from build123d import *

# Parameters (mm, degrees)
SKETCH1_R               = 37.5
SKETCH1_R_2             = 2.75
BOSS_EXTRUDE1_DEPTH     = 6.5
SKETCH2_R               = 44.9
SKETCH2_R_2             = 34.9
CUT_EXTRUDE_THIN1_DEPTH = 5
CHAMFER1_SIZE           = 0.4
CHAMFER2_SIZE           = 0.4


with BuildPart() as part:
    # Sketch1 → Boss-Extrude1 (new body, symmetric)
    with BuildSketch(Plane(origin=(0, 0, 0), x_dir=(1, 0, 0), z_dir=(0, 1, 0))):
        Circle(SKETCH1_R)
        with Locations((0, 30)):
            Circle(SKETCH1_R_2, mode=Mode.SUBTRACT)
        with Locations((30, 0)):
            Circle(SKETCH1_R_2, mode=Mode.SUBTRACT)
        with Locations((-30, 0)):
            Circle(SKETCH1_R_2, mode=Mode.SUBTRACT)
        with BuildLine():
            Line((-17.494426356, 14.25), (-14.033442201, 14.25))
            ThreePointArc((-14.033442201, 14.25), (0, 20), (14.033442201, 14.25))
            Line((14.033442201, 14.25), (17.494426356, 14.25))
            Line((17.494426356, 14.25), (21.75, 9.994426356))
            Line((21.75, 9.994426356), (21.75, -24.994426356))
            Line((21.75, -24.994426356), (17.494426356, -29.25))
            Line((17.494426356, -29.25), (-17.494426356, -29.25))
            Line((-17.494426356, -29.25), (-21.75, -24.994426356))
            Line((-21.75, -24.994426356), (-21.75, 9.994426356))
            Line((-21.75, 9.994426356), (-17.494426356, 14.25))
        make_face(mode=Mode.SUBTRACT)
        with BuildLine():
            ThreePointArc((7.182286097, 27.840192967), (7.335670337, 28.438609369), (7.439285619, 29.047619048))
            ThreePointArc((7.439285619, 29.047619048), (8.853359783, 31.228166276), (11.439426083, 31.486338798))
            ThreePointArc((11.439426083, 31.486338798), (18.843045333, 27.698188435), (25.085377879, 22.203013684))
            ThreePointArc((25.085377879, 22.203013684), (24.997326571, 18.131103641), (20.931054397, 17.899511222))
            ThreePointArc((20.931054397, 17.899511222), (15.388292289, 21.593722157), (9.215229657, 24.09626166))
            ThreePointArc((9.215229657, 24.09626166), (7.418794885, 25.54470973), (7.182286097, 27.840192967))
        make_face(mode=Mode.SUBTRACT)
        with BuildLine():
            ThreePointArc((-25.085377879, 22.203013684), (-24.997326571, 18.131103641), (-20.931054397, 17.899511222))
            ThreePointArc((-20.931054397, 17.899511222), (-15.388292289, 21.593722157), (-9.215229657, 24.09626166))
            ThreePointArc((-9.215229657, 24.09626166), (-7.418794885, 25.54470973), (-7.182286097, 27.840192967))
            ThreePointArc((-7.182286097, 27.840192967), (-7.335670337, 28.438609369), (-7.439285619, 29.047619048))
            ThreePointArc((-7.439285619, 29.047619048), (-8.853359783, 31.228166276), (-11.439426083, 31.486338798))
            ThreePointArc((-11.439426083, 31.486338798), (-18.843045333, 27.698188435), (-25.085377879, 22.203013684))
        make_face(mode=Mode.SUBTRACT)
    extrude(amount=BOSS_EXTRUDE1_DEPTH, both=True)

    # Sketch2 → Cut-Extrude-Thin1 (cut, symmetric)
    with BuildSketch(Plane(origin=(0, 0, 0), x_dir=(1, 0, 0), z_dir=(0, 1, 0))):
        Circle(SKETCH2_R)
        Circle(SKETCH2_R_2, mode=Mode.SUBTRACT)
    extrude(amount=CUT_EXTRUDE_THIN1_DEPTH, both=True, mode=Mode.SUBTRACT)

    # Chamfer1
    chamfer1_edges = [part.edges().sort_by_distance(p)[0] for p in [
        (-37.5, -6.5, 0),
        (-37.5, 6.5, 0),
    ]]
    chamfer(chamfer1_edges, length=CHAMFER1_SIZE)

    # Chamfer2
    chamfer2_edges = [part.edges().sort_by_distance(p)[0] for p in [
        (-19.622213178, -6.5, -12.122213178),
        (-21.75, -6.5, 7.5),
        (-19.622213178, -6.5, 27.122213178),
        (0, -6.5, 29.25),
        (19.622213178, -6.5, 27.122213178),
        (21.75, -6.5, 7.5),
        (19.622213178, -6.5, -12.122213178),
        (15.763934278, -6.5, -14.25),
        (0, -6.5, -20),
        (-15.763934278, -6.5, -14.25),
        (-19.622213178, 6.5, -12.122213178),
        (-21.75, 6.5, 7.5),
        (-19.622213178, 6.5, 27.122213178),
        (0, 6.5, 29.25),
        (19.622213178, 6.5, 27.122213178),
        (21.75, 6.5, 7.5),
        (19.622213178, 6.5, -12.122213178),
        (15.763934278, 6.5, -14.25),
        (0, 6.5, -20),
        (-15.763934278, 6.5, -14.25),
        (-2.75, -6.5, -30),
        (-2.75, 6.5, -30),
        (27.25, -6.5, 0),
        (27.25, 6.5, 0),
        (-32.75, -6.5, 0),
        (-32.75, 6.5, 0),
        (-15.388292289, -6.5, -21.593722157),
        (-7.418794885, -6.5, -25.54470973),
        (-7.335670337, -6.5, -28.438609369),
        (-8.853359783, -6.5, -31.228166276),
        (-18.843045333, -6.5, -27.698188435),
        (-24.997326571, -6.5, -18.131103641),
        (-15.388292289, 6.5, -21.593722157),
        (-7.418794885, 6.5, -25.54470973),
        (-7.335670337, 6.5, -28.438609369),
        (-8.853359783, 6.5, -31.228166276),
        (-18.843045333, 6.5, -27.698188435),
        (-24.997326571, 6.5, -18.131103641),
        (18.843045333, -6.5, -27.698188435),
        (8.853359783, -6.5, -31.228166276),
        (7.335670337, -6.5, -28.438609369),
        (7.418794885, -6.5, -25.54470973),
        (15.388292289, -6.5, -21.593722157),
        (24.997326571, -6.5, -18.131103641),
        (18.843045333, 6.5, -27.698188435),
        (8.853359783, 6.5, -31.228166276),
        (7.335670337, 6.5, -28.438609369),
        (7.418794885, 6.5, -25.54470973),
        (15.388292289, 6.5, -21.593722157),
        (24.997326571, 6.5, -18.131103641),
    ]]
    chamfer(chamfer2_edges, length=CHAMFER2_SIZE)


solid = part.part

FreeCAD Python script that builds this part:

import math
import FreeCAD as App
import Part
import Sketcher


def edges_at(feature, points):
    """Names of the edges that pass closest to the given points."""
    edges = feature.Shape.Edges
    near = lambda p: min(range(len(edges)), key=lambda i: edges[i].distToShape(Part.Vertex(*p))[0])
    return sorted({f"Edge{near(p) + 1}" for p in points})

doc = App.newDocument("Part")
params = doc.addObject("Spreadsheet::Sheet", "Params")
for row, (alias, value) in enumerate([
    ("sketch1_diameter", "75 mm"),
    ("sketch1_radius", "20 mm"),
    ("sketch1_radius2", "3 mm"),
    ("sketch1_diameter2", "5.5 mm"),
    ("sketch1_radius3", "33.5 mm"),
    ("pad1_length", "13 mm"),
    ("sketch2_diameter", "89.8 mm"),
    ("sketch2_diameter2", "69.8 mm"),
    ("pocket1_length", "10 mm"),
    ("chamfer_size", "0.4 mm"),
    ("chamfer2_size", "0.4 mm"),
], start=1):
    params.set(f"A{row}", alias)
    params.set(f"B{row}", "=" + value)
    params.setAlias(f"B{row}", alias)

body = doc.addObject("PartDesign::Body", "Body")

sketch1 = body.newObject("Sketcher::SketchObject", "Sketch")
sketch1.AttachmentSupport = (doc.getObject("XZ_Plane"), [""])
sketch1.MapMode = "FlatFace"
sketch1.addGeometry([
    Part.Circle(App.Vector(0, 0, 0), App.Vector(0, 0, 1), 37.5),
    Part.Circle(App.Vector(-30, 0, 0), App.Vector(0, 0, 1), 2.75),
    Part.LineSegment(App.Vector(-21.75, -9.994426, 0), App.Vector(-17.494426, -14.25, 0)),
    Part.LineSegment(App.Vector(-17.494426, -14.25, 0), App.Vector(-14.033442, -14.25, 0)),
    Part.ArcOfCircle(Part.Circle(App.Vector(0, 0, 0), App.Vector(0, 0, 1), 20), math.radians(-134.561312), math.radians(-45.438688)),
    Part.LineSegment(App.Vector(14.033442, -14.25, 0), App.Vector(17.494426, -14.25, 0)),
    Part.LineSegment(App.Vector(17.494426, -14.25, 0), App.Vector(21.75, -9.994426, 0)),
    Part.LineSegment(App.Vector(21.75, -9.994426, 0), App.Vector(21.75, 24.994426, 0)),
    Part.LineSegment(App.Vector(21.75, 24.994426, 0), App.Vector(17.494426, 29.25, 0)),
    Part.LineSegment(App.Vector(17.494426, 29.25, 0), App.Vector(-17.494426, 29.25, 0)),
    Part.LineSegment(App.Vector(-17.494426, 29.25, 0), App.Vector(-21.75, 24.994426, 0)),
    Part.LineSegment(App.Vector(-21.75, 24.994426, 0), App.Vector(-21.75, -9.994426, 0)),
    Part.Circle(App.Vector(30, 0, 0), App.Vector(0, 0, 1), 2.75),
    Part.ArcOfCircle(Part.Circle(App.Vector(-22.838926, -20.214684, 0), App.Vector(0, 0, 1), 3), math.radians(50.508982), math.radians(221.511972)),
    Part.ArcOfCircle(Part.Circle(App.Vector(0, 0, 0), App.Vector(0, 0, 1), 33.5), math.radians(-138.488028), math.radians(-109.966789)),
    Part.ArcOfCircle(Part.Circle(App.Vector(-10.415, -28.666667, 0), App.Vector(0, 0, 1), 3), math.radians(-109.966789), math.radians(-7.295351)),
    Part.ArcOfCircle(Part.Circle(App.Vector(0, -30, 0), App.Vector(0, 0, 1), 7.5), math.radians(163.263283), math.radians(172.704649)),
    Part.ArcOfCircle(Part.Circle(App.Vector(-10.055201, -26.97627, 0), App.Vector(0, 0, 1), 3), math.radians(-16.736717), math.radians(73.740375)),
    Part.ArcOfCircle(Part.Circle(App.Vector(0, 7.5, 0), App.Vector(0, 0, 1), 32.912675), math.radians(-129.491018), math.radians(-106.259625)),
    Part.Circle(App.Vector(0, -30, 0), App.Vector(0, 0, 1), 2.75),
    Part.ArcOfCircle(Part.Circle(App.Vector(10.055201, -26.97627, 0), App.Vector(0, 0, 1), 3), math.radians(106.259625), math.radians(196.736717)),
    Part.ArcOfCircle(Part.Circle(App.Vector(0, -30, 0), App.Vector(0, 0, 1), 7.5), math.radians(7.295351), math.radians(16.736717)),
    Part.ArcOfCircle(Part.Circle(App.Vector(10.415, -28.666667, 0), App.Vector(0, 0, 1), 3), math.radians(-172.704649), math.radians(-70.033211)),
    Part.ArcOfCircle(Part.Circle(App.Vector(0, 0, 0), App.Vector(0, 0, 1), 33.5), math.radians(-70.033211), math.radians(-41.511972)),
    Part.ArcOfCircle(Part.Circle(App.Vector(22.838926, -20.214684, 0), App.Vector(0, 0, 1), 3), math.radians(-41.511972), math.radians(129.491018)),
    Part.ArcOfCircle(Part.Circle(App.Vector(0, 7.5, 0), App.Vector(0, 0, 1), 32.912675), math.radians(-73.740375), math.radians(-50.508982)),
], False)
sketch1.addConstraint([
    Sketcher.Constraint("Coincident", 2, 2, 3, 1),
    Sketcher.Constraint("Coincident", 3, 2, 4, 1),
    Sketcher.Constraint("Coincident", 4, 2, 5, 1),
    Sketcher.Constraint("Coincident", 5, 2, 6, 1),
    Sketcher.Constraint("Coincident", 6, 2, 7, 1),
    Sketcher.Constraint("Coincident", 7, 2, 8, 1),
    Sketcher.Constraint("Coincident", 8, 2, 9, 1),
    Sketcher.Constraint("Coincident", 9, 2, 10, 1),
    Sketcher.Constraint("Coincident", 10, 2, 11, 1),
    Sketcher.Constraint("Coincident", 11, 2, 2, 1),
    Sketcher.Constraint("Tangent", 13, 2, 14, 1),
    Sketcher.Constraint("Tangent", 14, 2, 15, 1),
    Sketcher.Constraint("Tangent", 15, 2, 16, 2),
    Sketcher.Constraint("Tangent", 16, 1, 17, 1),
    Sketcher.Constraint("Tangent", 17, 2, 18, 2),
    Sketcher.Constraint("Tangent", 18, 1, 13, 1),
    Sketcher.Constraint("Tangent", 20, 2, 21, 2),
    Sketcher.Constraint("Tangent", 21, 1, 22, 1),
    Sketcher.Constraint("Tangent", 22, 2, 23, 1),
    Sketcher.Constraint("Tangent", 23, 2, 24, 1),
    Sketcher.Constraint("Tangent", 24, 2, 25, 2),
    Sketcher.Constraint("Tangent", 25, 1, 20, 1),
    Sketcher.Constraint("Horizontal", 3),
    Sketcher.Constraint("Horizontal", 5),
    Sketcher.Constraint("Vertical", 7),
    Sketcher.Constraint("Horizontal", 9),
    Sketcher.Constraint("Vertical", 11),
    Sketcher.Constraint("Coincident", 0, 3, -1, 1),
    Sketcher.Constraint("Coincident", 4, 3, -1, 1),
    Sketcher.Constraint("Coincident", 14, 3, -1, 1),
    Sketcher.Constraint("Coincident", 23, 3, -1, 1),
    Sketcher.Constraint("Coincident", 19, 3, 16, 3),
    Sketcher.Constraint("Coincident", 21, 3, 16, 3),
    Sketcher.Constraint("Coincident", 25, 3, 18, 3),
    Sketcher.Constraint("Equal", 1, 12),
    Sketcher.Constraint("Equal", 13, 15),
    Sketcher.Constraint("Equal", 15, 17),
    Sketcher.Constraint("Equal", 12, 19),
    Sketcher.Constraint("Equal", 17, 20),
    Sketcher.Constraint("Equal", 16, 21),
    Sketcher.Constraint("Equal", 20, 22),
    Sketcher.Constraint("Equal", 14, 23),
    Sketcher.Constraint("Equal", 22, 24),
    Sketcher.Constraint("Equal", 18, 25),
    Sketcher.Constraint("Symmetric", 1, 3, 12, 3, -1, 1),
    Sketcher.Constraint("Symmetric", 17, 3, 20, 3, -2),
    Sketcher.Constraint("Symmetric", 2, 2, 5, 2, -2),
    Sketcher.Constraint("Symmetric", 7, 2, 10, 2, -2),
    Sketcher.Constraint("PointOnObject", 1, 3, -1),
    Sketcher.Constraint("Perpendicular", 2, 6),
    Sketcher.Constraint("Perpendicular", 6, 8),
    Sketcher.Constraint("Perpendicular", 8, 10),
    Sketcher.Constraint("Horizontal", 6, 2, 11, 2),
    Sketcher.Constraint("Vertical", 5, 2, 8, 2),
    Sketcher.Constraint("Equal", 9, 7),
    Sketcher.Constraint("Diameter", 0, 75.0),
    Sketcher.Constraint("Radius", 4, 20.0),
    Sketcher.Constraint("Radius", 13, 3.0),
    Sketcher.Constraint("Diameter", 1, 5.5),
    Sketcher.Constraint("Radius", 14, 33.5),
    Sketcher.Constraint("Radius", 16, 7.5),
    Sketcher.Constraint("DistanceX", 1, 3, -1, 1, 30.0),
    Sketcher.Constraint("DistanceY", 16, 3, -1, 1, 30.0),
    Sketcher.Constraint("DistanceY", -1, 1, 18, 3, 7.5),
    Sketcher.Constraint("DistanceY", 2, 2, -1, 1, 14.25),
    Sketcher.Constraint("DistanceX", -1, 1, 6, 2, 21.75),
    Sketcher.Constraint("Radius", 18, 32.912675),
    Sketcher.Constraint("DistanceX", 13, 3, 2, 2, 5.3445),
])
sketch1.setExpression("Constraints[55]", "Params.sketch1_diameter")
sketch1.setExpression("Constraints[56]", "Params.sketch1_radius")
sketch1.setExpression("Constraints[57]", "Params.sketch1_radius2")
sketch1.setExpression("Constraints[58]", "Params.sketch1_diameter2")
sketch1.setExpression("Constraints[59]", "Params.sketch1_radius3")
pad1 = body.newObject("PartDesign::Pad", "Pad")
pad1.Profile = sketch1
pad1.setExpression("Length", "Params.pad1_length")
pad1.Midplane = True

sketch2 = body.newObject("Sketcher::SketchObject", "Sketch001")
sketch2.AttachmentSupport = (doc.getObject("XZ_Plane"), [""])
sketch2.MapMode = "FlatFace"
sketch2.addGeometry([
    Part.Circle(App.Vector(0, 0, 0), App.Vector(0, 0, 1), 44.9),
    Part.Circle(App.Vector(0, 0, 0), App.Vector(0, 0, 1), 34.9),
], False)
sketch2.addConstraint([
    Sketcher.Constraint("Coincident", 0, 3, -1, 1),
    Sketcher.Constraint("Coincident", 1, 3, -1, 1),
    Sketcher.Constraint("Diameter", 0, 89.8),
    Sketcher.Constraint("Diameter", 1, 69.8),
])
sketch2.setExpression("Constraints[2]", "Params.sketch2_diameter")
sketch2.setExpression("Constraints[3]", "Params.sketch2_diameter2")
pocket1 = body.newObject("PartDesign::Pocket", "Pocket")
pocket1.Profile = sketch2
pocket1.setExpression("Length", "Params.pocket1_length")
pocket1.Midplane = True
doc.recompute()

chamfer = body.newObject("PartDesign::Chamfer", "Chamfer")
chamfer.Base = (pocket1, edges_at(pocket1, [(-37.5, -6.5, 0), (-37.5, 6.5, 0)]))
chamfer.setExpression("Size", "Params.chamfer_size")
doc.recompute()

chamfer2 = body.newObject("PartDesign::Chamfer", "Chamfer001")
chamfer2.Base = (chamfer, edges_at(chamfer, [
    (-19.622, -6.5, -12.122),
    (-21.75, -6.5, 7.5),
    (-19.622, -6.5, 27.122),
    (0, -6.5, 29.25),
    (19.622, -6.5, 27.122),
    (21.75, -6.5, 7.5),
    (19.622, -6.5, -12.122),
    (15.764, -6.5, -14.25),
    (0, -6.5, -20),
    (-15.764, -6.5, -14.25),
    (-19.622, 6.5, -12.122),
    (-21.75, 6.5, 7.5),
    (-19.622, 6.5, 27.122),
    (0, 6.5, 29.25),
    (19.622, 6.5, 27.122),
    (21.75, 6.5, 7.5),
    (19.622, 6.5, -12.122),
    (15.764, 6.5, -14.25),
    (0, 6.5, -20),
    (-15.764, 6.5, -14.25),
    (-2.75, -6.5, -30),
    (-2.75, 6.5, -30),
    (27.25, -6.5, 0),
    (27.25, 6.5, 0),
    (-32.75, -6.5, 0),
    (-32.75, 6.5, 0),
    (-15.388, -6.5, -21.594),
    (-7.419, -6.5, -25.545),
    (-7.336, -6.5, -28.439),
    (-8.853, -6.5, -31.228),
    (-18.843, -6.5, -27.698),
    (-24.997, -6.5, -18.131),
    (-15.388, 6.5, -21.594),
    (-7.419, 6.5, -25.545),
    (-7.336, 6.5, -28.439),
    (-8.853, 6.5, -31.228),
    (-18.843, 6.5, -27.698),
    (-24.997, 6.5, -18.131),
    (18.843, -6.5, -27.698),
    (8.853, -6.5, -31.228),
    (7.336, -6.5, -28.439),
    (7.419, -6.5, -25.545),
    (15.388, -6.5, -21.594),
    (24.997, -6.5, -18.131),
    (18.843, 6.5, -27.698),
    (8.853, 6.5, -31.228),
    (7.336, 6.5, -28.439),
    (7.419, 6.5, -25.545),
    (15.388, 6.5, -21.594),
    (24.997, 6.5, -18.131),
]))
chamfer2.setExpression("Size", "Params.chamfer2_size")

doc.recompute()
